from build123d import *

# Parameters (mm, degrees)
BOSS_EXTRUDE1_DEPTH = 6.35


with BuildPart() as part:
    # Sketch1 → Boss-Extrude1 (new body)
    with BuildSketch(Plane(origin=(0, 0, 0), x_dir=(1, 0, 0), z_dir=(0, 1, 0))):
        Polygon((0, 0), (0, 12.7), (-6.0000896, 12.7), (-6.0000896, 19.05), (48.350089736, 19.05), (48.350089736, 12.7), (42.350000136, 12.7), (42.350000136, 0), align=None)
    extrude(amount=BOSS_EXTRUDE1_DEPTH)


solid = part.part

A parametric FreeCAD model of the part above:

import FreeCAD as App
import Part
import Sketcher

V = App.Vector
Q = App.Units.Quantity

doc = App.newDocument("Part")
body = doc.addObject("PartDesign::Body", "Body")

sketch1 = body.newObject("Sketcher::SketchObject", "Sketch")
sketch1.AttachmentSupport = (doc.getObject("XZ_Plane"), [""])
sketch1.MapMode = "FlatFace"
sketch1.addGeometry([
    Part.LineSegment(V(0, -12.7, 0), V(0, 0, 0)),
    Part.LineSegment(V(0, 0, 0), V(42.35, 0, 0)),
    Part.LineSegment(V(42.35, 0, 0), V(42.35, -12.7, 0)),
    Part.LineSegment(V(42.35, -12.7, 0), V(48.35009, -12.7, 0)),
    Part.LineSegment(V(48.35009, -12.7, 0), V(48.35009, -19.05, 0)),
    Part.LineSegment(V(48.35009, -19.05, 0), V(-6.00009, -19.05, 0)),
    Part.LineSegment(V(-6.00009, -19.05, 0), V(-6.00009, -12.7, 0)),
    Part.LineSegment(V(-6.00009, -12.7, 0), V(0, -12.7, 0)),
], False)
sketch1.addConstraint([
    Sketcher.Constraint("Coincident", 0, 2, 1, 1),
    Sketcher.Constraint("Coincident", 1, 2, 2, 1),
    Sketcher.Constraint("Coincident", 2, 2, 3, 1),
    Sketcher.Constraint("Coincident", 3, 2, 4, 1),
    Sketcher.Constraint("Coincident", 4, 2, 5, 1),
    Sketcher.Constraint("Coincident", 5, 2, 6, 1),
    Sketcher.Constraint("Coincident", 6, 2, 7, 1),
    Sketcher.Constraint("Coincident", 7, 2, 0, 1),
    Sketcher.Constraint("Vertical", 0),
    Sketcher.Constraint("Horizontal", 1),
    Sketcher.Constraint("Vertical", 2),
    Sketcher.Constraint("Horizontal", 3),
    Sketcher.Constraint("Vertical", 4),
    Sketcher.Constraint("Horizontal", 5),
    Sketcher.Constraint("Vertical", 6),
    Sketcher.Constraint("Horizontal", 7),
    Sketcher.Constraint("Coincident", 0, 2, -1, 1),
    Sketcher.Constraint("Horizontal", 3, 2, 6, 2),
    Sketcher.Constraint("Equal", 3, 7),
    Sketcher.Constraint("DistanceY", 0, 1, 0, 2, Q("0.5 in")),
    Sketcher.Constraint("DistanceY", 4, 2, 4, 1, Q("0.25 in")),
    Sketcher.Constraint("DistanceX", 1, 1, 1, 2, 42.35),
    Sketcher.Constraint("DistanceX", 3, 1, 3, 2, 6.00009),
])
pad1 = body.newObject("PartDesign::Pad", "Pad")
pad1.Profile = sketch1
pad1.Length = Q("0.25 in")
pad1.Reversed = True

doc.recompute()
